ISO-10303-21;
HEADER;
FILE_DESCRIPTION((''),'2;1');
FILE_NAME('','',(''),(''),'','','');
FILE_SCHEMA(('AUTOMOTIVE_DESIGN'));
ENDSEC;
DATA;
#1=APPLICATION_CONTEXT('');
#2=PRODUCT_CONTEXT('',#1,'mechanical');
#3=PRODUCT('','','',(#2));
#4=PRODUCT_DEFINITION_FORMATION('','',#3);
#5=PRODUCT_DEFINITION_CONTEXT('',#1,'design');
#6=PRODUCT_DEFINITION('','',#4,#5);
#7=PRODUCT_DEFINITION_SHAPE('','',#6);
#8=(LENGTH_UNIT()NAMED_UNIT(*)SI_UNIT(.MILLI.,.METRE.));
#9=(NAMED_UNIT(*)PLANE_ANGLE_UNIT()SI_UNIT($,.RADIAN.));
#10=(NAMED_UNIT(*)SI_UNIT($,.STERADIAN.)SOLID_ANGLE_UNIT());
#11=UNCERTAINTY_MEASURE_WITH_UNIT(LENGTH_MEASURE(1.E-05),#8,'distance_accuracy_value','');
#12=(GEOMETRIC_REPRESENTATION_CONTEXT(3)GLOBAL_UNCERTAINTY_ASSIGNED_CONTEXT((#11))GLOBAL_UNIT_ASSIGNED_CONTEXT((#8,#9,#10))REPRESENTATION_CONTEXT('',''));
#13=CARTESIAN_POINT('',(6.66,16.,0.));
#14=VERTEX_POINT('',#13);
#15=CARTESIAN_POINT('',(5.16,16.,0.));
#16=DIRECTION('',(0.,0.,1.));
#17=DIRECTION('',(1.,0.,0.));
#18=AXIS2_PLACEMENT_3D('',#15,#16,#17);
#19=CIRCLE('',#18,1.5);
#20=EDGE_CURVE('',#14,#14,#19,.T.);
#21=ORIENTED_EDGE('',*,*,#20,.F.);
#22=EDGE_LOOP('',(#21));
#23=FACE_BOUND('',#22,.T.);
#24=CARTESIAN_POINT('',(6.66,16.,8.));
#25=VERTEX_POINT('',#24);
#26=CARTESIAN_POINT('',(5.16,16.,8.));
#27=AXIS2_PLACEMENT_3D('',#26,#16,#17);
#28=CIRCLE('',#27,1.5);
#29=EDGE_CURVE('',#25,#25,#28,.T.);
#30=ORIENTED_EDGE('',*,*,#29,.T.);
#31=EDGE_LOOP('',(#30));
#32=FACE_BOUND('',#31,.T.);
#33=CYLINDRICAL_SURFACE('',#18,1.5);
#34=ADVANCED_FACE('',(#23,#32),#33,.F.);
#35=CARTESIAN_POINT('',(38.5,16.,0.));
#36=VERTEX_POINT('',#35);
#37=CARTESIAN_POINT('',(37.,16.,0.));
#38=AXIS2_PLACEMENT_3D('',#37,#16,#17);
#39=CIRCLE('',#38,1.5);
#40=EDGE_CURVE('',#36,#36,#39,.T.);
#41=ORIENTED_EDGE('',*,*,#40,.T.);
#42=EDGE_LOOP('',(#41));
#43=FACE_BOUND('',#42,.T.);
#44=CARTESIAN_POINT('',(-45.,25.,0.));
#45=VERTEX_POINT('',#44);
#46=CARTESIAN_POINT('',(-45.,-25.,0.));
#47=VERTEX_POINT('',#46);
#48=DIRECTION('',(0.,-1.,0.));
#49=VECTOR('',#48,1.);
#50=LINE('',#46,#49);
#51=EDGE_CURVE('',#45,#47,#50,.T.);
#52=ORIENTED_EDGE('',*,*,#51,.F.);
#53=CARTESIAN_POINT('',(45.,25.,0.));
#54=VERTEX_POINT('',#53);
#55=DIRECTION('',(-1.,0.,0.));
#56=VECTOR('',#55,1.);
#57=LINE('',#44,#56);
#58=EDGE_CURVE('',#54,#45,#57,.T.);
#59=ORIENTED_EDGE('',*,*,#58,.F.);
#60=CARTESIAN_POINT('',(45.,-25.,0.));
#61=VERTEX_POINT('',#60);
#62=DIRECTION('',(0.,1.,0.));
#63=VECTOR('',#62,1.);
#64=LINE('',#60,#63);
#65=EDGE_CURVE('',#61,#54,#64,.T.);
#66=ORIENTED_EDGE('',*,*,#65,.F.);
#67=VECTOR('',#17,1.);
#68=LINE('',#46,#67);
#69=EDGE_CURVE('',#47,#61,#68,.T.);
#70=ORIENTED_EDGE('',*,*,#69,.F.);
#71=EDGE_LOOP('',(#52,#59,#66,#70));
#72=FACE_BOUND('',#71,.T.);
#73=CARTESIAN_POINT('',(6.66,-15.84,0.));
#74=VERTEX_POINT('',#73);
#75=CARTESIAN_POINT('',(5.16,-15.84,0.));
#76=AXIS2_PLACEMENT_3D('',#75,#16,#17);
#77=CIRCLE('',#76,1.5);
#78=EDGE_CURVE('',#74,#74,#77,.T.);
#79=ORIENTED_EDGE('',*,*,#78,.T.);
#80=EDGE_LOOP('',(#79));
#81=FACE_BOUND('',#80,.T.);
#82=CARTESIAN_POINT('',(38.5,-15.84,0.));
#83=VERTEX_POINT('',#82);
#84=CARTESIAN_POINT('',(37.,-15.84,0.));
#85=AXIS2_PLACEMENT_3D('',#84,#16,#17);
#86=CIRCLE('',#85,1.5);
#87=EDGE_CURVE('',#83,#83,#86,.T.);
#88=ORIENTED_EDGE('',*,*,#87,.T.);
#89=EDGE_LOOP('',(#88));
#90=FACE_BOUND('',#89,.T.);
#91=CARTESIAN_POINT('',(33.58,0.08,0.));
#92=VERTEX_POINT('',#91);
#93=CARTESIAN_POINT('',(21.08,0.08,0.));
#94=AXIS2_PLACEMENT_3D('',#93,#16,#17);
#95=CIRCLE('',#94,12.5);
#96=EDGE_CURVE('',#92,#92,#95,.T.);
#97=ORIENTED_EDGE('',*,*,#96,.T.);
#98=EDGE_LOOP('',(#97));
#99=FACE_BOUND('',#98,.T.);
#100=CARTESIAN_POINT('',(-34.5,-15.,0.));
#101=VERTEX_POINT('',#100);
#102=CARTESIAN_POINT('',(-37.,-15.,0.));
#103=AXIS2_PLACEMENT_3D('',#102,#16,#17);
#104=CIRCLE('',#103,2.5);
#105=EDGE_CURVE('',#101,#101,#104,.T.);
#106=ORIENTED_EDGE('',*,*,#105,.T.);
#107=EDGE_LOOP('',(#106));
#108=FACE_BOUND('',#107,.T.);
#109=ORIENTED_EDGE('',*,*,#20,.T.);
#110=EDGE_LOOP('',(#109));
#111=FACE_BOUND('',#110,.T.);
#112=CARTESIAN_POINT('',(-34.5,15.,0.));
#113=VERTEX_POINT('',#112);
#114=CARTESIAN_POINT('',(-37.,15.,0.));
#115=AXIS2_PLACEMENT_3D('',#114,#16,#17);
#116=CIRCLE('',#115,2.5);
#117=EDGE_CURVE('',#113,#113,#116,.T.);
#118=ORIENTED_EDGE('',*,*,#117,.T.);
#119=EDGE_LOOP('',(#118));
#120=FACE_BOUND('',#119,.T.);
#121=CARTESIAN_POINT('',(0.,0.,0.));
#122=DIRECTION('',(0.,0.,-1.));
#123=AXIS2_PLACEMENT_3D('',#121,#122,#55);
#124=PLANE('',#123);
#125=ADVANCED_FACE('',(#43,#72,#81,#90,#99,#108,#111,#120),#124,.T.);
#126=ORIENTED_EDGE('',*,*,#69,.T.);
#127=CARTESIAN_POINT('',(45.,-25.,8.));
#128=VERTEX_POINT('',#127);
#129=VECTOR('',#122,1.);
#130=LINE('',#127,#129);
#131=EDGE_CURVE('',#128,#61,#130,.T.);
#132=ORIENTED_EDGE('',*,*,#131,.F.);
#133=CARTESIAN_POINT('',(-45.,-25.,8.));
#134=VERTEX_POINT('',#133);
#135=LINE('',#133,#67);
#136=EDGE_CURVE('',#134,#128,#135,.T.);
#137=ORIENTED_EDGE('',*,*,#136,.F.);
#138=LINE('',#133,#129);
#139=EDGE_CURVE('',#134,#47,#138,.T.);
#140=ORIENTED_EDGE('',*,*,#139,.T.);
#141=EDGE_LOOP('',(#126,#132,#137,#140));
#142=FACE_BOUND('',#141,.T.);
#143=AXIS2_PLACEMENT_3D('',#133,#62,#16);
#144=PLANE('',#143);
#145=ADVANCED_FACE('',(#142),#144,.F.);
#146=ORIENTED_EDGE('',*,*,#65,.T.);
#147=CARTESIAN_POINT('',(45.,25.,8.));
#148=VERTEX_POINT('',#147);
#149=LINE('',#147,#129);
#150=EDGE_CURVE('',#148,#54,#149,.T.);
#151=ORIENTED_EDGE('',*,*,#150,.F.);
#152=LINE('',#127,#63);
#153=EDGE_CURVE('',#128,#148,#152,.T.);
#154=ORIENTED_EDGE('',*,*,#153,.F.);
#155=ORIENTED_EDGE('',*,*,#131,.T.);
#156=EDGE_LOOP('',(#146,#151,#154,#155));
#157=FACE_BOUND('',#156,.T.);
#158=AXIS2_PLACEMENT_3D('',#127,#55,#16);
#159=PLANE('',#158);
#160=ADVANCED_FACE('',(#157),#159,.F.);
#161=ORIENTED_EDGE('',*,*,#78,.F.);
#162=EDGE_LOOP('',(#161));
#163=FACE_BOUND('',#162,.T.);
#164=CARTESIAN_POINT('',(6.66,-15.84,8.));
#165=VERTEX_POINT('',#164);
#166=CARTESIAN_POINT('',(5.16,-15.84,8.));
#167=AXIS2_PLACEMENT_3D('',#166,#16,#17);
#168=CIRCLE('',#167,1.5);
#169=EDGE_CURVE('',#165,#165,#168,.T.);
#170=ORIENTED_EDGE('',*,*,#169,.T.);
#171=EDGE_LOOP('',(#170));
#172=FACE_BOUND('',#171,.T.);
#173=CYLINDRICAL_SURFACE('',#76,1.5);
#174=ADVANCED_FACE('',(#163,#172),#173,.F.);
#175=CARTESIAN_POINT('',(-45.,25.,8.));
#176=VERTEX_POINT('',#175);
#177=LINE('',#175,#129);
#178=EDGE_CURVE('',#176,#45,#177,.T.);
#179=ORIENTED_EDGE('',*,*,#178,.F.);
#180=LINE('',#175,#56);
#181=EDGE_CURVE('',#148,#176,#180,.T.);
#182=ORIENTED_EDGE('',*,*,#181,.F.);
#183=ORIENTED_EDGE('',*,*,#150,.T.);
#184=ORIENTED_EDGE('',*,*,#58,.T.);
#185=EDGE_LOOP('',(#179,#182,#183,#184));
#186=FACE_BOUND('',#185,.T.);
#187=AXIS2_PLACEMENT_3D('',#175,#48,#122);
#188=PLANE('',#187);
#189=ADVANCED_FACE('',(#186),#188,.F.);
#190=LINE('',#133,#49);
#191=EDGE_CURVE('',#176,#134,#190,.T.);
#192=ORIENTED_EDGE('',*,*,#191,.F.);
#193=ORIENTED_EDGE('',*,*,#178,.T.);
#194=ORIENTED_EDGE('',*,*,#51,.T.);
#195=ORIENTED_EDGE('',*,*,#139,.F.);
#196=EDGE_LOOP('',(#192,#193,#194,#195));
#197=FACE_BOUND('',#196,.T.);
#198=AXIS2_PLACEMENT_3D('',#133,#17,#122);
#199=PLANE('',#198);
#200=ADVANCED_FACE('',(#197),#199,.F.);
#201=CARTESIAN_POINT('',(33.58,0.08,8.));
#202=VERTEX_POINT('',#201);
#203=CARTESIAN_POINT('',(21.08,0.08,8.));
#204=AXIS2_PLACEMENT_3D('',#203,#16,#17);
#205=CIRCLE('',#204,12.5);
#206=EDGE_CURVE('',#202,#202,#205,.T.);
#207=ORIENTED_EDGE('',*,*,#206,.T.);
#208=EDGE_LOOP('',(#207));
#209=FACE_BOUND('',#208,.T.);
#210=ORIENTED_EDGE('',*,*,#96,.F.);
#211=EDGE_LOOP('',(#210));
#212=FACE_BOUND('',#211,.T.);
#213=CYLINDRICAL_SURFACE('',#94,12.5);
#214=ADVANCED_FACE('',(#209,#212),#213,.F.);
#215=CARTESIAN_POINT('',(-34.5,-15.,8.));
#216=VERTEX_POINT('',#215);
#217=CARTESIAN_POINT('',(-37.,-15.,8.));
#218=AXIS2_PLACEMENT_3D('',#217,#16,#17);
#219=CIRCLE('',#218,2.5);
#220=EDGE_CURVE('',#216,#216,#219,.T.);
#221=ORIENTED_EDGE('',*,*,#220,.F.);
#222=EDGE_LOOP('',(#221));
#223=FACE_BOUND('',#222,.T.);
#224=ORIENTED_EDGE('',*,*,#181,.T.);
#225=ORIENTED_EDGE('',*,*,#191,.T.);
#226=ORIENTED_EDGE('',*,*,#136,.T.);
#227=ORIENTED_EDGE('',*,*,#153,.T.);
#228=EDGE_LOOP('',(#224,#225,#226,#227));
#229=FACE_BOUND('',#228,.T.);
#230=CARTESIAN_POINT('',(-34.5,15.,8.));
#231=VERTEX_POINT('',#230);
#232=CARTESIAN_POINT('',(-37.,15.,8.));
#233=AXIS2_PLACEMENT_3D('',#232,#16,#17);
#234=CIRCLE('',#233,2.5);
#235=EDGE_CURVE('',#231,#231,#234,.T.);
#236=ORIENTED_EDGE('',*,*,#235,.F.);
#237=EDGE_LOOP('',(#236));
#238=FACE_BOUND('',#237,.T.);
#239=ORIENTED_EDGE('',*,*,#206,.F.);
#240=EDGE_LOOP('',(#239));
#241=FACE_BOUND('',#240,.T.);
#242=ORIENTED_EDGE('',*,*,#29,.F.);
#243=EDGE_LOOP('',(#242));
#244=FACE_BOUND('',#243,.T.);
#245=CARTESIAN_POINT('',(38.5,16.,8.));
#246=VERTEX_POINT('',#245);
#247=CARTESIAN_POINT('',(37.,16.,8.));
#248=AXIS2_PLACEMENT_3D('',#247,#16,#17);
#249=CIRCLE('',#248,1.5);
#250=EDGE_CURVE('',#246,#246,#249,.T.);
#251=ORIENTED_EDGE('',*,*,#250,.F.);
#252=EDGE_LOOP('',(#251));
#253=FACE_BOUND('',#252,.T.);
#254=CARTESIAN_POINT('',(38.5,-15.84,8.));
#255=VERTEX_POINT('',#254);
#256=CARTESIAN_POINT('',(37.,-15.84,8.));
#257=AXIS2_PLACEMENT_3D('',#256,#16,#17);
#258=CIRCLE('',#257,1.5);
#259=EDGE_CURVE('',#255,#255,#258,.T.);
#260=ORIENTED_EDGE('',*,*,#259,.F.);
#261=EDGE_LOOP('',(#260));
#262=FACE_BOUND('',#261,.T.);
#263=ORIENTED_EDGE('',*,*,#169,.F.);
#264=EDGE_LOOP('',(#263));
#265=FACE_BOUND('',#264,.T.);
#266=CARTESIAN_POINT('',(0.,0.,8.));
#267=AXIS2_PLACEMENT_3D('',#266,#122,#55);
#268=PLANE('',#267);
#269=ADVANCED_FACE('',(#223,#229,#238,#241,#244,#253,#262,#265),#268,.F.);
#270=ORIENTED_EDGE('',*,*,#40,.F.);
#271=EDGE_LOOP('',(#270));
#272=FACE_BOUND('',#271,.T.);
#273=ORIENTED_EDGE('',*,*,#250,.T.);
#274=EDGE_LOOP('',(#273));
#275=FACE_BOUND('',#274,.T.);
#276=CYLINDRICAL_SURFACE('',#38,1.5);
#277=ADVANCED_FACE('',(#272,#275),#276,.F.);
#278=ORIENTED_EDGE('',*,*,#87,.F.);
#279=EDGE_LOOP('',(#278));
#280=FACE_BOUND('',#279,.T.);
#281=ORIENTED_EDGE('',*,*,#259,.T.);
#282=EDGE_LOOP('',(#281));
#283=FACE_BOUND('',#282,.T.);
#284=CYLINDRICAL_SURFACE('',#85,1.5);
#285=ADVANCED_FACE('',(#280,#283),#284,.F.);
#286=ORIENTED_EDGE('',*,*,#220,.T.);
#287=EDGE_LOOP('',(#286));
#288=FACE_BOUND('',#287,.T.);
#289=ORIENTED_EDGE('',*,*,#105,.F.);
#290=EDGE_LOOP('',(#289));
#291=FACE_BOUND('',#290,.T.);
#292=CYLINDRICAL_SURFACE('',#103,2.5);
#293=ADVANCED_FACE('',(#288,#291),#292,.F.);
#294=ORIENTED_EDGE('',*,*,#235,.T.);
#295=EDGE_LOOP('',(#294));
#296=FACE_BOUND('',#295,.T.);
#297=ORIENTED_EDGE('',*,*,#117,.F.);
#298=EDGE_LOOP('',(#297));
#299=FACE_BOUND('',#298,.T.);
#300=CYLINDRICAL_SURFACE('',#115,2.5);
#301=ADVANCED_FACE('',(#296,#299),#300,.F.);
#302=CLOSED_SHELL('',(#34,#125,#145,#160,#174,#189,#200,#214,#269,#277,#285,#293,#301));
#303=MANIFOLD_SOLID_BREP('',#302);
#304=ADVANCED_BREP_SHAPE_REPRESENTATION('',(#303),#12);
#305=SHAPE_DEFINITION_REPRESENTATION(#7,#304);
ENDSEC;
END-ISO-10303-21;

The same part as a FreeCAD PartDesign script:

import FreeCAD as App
import Part
import Sketcher

doc = App.newDocument("Part")
body = doc.addObject("PartDesign::Body", "Body")

sketch1 = body.newObject("Sketcher::SketchObject", "Sketch")
sketch1.AttachmentSupport = (doc.getObject("XY_Plane"), [""])
sketch1.MapMode = "FlatFace"
sketch1.addGeometry([
    Part.LineSegment(App.Vector(-45, 25, 0), App.Vector(-45, -25, 0)),
    Part.LineSegment(App.Vector(-45, -25, 0), App.Vector(45, -25, 0)),
    Part.LineSegment(App.Vector(45, -25, 0), App.Vector(45, 25, 0)),
    Part.LineSegment(App.Vector(45, 25, 0), App.Vector(-45, 25, 0)),
], False)
sketch1.addConstraint([
    Sketcher.Constraint("Coincident", 0, 2, 1, 1),
    Sketcher.Constraint("Coincident", 1, 2, 2, 1),
    Sketcher.Constraint("Coincident", 2, 2, 3, 1),
    Sketcher.Constraint("Coincident", 3, 2, 0, 1),
    Sketcher.Constraint("Vertical", 0),
    Sketcher.Constraint("Horizontal", 1),
    Sketcher.Constraint("Vertical", 2),
    Sketcher.Constraint("Horizontal", 3),
    Sketcher.Constraint("Symmetric", 0, 2, 2, 2, -1, 1),
    Sketcher.Constraint("DistanceX", 1, 1, 1, 2, 90.0),
    Sketcher.Constraint("DistanceY", 0, 2, 0, 1, 50.0),
])
pad1 = body.newObject("PartDesign::Pad", "Pad")
pad1.Profile = sketch1
pad1.Length = 8

sketch2 = body.newObject("Sketcher::SketchObject", "Sketch001")
sketch2.AttachmentSupport = (doc.getObject("XY_Plane"), [""])
sketch2.MapMode = "FlatFace"
sketch2.AttachmentOffset = App.Placement(App.Vector(0, 0, 8), App.Rotation())
sketch2.addGeometry([
    Part.Circle(App.Vector(21.08, 0.08, 0), App.Vector(0, 0, 1), 12.5),
    Part.Circle(App.Vector(37, -15.84, 0), App.Vector(0, 0, 1), 1.5),
    Part.Circle(App.Vector(-37, -15, 0), App.Vector(0, 0, 1), 2.5),
    Part.Circle(App.Vector(5.16, -15.84, 0), App.Vector(0, 0, 1), 1.5),
    Part.Circle(App.Vector(37, 16, 0), App.Vector(0, 0, 1), 1.5),
    Part.Circle(App.Vector(5.16, 16, 0), App.Vector(0, 0, 1), 1.5),
    Part.Circle(App.Vector(-37, 15, 0), App.Vector(0, 0, 1), 2.5),
], False)
sketch2.addConstraint([
    Sketcher.Constraint("Equal", 1, 3),
    Sketcher.Constraint("Equal", 3, 4),
    Sketcher.Constraint("Equal", 4, 5),
    Sketcher.Constraint("Equal", 2, 6),
    Sketcher.Constraint("Symmetric", 2, 3, 6, 3, -1),
    Sketcher.Constraint("Horizontal", 1, 3, 3, 3),
    Sketcher.Constraint("Horizontal", 4, 3, 5, 3),
    Sketcher.Constraint("Vertical", 1, 3, 4, 3),
    Sketcher.Constraint("Vertical", 3, 3, 5, 3),
    Sketcher.Constraint("Diameter", 0, 25.0),
    Sketcher.Constraint("Diameter", 1, 3.0),
    Sketcher.Constraint("Diameter", 2, 5.0),
    Sketcher.Constraint("DistanceX", -1, 1, 1, 3, 37.0),
    Sketcher.Constraint("DistanceX", 2, 3, -1, 1, 37.0),
    Sketcher.Constraint("DistanceY", 2, 3, -1, 1, 15.0),
    Sketcher.Constraint("DistanceY", -1, 1, 4, 3, 16.0),
    Sketcher.Constraint("DistanceX", -1, 1, 0, 3, 21.08),
    Sketcher.Constraint("DistanceY", -1, 1, 0, 3, 0.08),
    Sketcher.Constraint("DistanceY", 1, 3, -1, 1, 15.84),
    Sketcher.Constraint("DistanceX", -1, 1, 3, 3, 5.16),
])
pocket1 = body.newObject("PartDesign::Pocket", "Pocket")
pocket1.Profile = sketch2
pocket1.Length = 8

doc.recompute()
